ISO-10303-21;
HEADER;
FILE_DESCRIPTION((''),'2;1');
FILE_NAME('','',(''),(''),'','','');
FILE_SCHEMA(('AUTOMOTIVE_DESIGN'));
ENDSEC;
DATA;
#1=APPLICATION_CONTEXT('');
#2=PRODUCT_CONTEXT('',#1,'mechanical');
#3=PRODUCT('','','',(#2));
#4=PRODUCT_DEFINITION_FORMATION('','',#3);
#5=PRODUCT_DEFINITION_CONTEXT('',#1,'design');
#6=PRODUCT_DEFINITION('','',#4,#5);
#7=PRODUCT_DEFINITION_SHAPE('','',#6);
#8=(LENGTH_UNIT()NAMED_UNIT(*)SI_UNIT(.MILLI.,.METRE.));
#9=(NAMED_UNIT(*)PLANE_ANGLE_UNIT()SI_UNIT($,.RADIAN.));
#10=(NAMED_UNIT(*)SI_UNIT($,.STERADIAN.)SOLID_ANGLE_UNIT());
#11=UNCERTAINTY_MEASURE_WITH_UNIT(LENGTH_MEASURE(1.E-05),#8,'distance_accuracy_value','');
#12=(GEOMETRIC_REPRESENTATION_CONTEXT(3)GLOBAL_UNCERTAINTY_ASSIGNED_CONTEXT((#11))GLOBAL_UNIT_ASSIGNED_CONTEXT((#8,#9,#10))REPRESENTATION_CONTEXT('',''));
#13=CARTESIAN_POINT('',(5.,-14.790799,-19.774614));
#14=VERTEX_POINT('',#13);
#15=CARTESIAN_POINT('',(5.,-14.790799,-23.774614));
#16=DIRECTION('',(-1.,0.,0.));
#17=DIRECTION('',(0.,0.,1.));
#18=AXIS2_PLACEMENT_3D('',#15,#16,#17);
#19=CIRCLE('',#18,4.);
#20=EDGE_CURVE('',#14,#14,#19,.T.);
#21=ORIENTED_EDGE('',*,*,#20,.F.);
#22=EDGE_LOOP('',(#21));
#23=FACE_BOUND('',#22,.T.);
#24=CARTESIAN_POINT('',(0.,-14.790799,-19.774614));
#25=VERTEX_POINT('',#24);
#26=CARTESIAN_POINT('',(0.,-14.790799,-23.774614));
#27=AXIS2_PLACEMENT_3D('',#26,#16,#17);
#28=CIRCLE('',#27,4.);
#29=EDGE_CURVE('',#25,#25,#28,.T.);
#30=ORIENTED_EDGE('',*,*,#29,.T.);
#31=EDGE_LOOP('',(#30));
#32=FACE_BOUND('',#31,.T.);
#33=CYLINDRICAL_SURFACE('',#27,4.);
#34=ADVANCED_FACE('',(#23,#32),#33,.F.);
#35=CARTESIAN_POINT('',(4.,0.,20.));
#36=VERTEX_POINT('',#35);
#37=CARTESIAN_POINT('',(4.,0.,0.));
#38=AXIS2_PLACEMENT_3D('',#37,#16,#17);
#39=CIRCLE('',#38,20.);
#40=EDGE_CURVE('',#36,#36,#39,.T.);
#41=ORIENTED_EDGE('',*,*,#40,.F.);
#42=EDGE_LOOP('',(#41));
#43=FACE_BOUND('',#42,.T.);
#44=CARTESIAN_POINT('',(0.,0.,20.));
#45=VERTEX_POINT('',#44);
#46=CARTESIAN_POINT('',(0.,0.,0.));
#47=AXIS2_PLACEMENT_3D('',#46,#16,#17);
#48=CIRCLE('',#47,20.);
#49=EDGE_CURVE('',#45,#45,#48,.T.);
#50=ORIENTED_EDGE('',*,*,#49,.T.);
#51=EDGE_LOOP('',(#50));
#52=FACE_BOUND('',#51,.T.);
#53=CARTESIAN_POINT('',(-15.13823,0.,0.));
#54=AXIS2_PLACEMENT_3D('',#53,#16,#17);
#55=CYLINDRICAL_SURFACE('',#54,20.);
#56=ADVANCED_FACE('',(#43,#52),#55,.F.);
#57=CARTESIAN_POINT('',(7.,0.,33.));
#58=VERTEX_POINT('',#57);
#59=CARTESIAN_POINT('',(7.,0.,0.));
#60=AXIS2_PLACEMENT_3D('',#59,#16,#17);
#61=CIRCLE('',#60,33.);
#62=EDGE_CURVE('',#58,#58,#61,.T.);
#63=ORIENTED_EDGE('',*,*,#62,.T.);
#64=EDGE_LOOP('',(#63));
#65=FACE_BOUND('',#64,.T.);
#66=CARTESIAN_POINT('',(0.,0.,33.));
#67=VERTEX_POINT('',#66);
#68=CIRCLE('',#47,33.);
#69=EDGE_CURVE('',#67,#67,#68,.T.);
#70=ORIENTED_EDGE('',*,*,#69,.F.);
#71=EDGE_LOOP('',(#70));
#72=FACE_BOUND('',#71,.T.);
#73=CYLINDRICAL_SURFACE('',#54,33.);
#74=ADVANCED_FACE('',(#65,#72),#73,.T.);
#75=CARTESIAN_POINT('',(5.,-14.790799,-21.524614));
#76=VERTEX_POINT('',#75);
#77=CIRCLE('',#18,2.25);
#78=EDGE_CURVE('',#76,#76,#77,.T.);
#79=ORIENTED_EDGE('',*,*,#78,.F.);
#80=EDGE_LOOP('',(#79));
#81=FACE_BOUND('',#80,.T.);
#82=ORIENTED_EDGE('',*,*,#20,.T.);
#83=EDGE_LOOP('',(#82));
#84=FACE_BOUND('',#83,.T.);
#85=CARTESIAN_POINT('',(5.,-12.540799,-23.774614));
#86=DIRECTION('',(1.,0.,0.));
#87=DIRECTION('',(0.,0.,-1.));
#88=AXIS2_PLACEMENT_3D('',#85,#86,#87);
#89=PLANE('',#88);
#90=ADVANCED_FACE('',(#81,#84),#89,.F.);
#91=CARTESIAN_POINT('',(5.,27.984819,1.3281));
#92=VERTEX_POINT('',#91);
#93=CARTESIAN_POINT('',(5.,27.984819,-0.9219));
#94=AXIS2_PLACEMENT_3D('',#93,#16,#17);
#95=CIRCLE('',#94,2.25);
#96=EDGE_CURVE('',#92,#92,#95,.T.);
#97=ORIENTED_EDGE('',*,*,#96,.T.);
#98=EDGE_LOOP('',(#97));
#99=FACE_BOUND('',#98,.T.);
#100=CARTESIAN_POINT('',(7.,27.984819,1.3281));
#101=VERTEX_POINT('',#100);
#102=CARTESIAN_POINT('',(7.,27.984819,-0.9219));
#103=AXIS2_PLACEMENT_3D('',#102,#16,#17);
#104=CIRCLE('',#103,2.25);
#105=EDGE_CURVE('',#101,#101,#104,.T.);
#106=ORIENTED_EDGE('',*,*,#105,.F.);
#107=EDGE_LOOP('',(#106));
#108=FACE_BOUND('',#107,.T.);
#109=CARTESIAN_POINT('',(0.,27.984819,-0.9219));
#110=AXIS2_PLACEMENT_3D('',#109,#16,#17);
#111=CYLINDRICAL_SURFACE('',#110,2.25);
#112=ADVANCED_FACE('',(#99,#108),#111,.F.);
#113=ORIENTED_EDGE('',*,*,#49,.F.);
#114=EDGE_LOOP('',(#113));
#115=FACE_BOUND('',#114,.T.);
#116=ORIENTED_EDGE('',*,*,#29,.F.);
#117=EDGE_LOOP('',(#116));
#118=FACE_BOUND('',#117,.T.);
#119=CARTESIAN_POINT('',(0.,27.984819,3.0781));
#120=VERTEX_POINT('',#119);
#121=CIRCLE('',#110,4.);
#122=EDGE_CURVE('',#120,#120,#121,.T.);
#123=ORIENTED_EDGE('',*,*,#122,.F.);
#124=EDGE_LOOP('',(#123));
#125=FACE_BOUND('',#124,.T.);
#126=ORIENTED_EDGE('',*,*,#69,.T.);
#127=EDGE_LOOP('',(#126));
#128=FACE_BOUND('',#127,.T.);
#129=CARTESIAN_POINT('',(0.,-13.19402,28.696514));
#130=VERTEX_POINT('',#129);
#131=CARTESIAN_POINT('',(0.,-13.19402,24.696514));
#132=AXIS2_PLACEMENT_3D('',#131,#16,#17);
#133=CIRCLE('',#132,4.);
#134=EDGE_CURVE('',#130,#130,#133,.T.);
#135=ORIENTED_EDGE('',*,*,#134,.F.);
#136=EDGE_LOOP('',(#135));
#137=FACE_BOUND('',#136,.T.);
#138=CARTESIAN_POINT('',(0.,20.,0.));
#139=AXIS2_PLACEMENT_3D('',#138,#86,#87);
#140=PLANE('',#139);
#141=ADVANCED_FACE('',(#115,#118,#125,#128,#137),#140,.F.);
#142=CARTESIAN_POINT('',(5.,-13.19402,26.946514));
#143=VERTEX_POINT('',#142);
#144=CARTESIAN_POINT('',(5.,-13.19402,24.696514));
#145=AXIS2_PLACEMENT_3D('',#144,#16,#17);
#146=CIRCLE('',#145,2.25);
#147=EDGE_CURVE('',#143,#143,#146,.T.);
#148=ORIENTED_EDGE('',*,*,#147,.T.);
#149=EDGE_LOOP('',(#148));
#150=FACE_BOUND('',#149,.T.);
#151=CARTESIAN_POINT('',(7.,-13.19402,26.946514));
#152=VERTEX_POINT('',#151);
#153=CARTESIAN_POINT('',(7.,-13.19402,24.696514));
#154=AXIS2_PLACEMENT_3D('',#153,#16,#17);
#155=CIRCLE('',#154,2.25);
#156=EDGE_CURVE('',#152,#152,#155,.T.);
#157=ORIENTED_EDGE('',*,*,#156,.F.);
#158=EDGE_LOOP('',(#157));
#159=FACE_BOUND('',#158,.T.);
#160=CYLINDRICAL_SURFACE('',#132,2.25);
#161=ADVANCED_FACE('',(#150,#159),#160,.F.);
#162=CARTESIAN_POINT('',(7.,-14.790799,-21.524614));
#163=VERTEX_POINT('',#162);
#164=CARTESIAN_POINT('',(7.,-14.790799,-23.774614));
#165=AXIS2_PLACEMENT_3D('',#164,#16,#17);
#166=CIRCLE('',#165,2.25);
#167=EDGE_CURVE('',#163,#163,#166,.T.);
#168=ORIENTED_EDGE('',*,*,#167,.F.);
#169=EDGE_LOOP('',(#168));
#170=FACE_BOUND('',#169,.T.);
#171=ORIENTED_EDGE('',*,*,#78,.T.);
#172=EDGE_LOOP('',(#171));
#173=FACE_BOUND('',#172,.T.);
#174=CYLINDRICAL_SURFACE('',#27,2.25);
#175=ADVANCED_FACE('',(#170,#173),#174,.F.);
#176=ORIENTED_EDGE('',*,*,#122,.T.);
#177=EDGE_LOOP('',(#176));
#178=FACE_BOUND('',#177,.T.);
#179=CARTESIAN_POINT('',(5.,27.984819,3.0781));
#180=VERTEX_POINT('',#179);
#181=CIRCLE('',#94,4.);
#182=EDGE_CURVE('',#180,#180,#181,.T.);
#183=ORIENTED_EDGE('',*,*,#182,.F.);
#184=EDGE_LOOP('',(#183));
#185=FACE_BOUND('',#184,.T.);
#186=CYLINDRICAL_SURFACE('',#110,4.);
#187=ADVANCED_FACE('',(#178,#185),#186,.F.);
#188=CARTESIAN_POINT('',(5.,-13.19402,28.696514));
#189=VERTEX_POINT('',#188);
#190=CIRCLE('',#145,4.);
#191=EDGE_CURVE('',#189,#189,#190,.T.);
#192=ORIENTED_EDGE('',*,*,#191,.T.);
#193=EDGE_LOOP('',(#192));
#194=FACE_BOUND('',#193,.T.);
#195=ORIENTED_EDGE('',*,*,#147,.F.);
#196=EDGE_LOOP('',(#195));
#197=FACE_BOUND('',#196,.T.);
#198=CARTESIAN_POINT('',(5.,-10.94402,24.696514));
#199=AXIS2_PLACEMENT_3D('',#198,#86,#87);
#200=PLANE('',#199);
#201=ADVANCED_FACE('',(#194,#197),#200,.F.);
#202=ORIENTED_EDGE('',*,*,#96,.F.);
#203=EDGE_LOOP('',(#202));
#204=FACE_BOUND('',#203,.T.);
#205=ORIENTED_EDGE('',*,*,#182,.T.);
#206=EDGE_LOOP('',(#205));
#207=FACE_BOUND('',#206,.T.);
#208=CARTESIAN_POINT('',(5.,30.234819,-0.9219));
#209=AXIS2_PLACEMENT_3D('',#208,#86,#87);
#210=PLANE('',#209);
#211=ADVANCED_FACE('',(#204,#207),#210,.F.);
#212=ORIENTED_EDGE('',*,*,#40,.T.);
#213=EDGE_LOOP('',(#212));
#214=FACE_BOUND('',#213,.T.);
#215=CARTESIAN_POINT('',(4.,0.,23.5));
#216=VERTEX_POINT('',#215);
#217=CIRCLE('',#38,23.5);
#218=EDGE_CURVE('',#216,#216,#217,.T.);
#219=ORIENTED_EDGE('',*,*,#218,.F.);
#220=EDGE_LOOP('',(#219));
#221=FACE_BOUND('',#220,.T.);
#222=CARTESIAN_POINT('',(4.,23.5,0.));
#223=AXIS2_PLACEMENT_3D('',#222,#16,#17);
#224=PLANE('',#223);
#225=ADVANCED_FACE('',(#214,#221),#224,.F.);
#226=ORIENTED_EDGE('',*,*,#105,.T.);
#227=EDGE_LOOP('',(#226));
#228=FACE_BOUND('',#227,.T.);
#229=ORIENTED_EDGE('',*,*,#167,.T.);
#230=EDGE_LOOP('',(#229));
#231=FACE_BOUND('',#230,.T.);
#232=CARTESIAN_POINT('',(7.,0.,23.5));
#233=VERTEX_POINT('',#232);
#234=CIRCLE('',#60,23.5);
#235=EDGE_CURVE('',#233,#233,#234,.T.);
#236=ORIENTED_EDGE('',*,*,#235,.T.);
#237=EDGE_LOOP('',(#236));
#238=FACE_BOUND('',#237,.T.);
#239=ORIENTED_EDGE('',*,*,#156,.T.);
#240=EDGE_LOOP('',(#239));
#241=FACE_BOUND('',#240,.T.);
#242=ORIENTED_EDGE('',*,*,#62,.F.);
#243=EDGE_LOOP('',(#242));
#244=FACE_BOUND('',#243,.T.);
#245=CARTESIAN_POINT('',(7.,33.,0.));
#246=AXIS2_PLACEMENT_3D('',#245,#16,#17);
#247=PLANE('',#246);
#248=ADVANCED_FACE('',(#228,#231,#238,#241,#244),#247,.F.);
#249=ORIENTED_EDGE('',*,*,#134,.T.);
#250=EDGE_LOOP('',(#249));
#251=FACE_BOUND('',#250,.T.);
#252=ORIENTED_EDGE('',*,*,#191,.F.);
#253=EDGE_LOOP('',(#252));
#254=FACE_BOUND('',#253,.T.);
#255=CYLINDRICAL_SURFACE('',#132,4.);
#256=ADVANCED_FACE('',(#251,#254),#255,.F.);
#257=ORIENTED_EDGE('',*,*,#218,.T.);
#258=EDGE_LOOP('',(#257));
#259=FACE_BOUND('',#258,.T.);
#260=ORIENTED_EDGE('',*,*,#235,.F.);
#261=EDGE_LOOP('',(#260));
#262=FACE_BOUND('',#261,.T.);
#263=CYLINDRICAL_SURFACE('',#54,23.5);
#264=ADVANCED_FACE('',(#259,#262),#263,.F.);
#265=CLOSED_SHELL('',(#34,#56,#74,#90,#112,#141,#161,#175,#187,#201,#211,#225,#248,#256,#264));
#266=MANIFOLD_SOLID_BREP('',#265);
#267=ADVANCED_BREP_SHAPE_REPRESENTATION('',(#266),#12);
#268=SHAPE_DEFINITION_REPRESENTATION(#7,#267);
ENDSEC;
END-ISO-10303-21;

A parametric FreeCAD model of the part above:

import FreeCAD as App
import Part
import Sketcher
Q = App.Units.Quantity


def add_polygon(sketch, points):
    """Adds a closed chain of lines whose ends are joined by coincident constraints."""
    first, n = sketch.GeometryCount, len(points)
    for a, b in zip(points, points[1:] + points[:1]):
        sketch.addGeometry(Part.LineSegment(App.Vector(*a, 0), App.Vector(*b, 0)), False)
    for i in range(n):
        sketch.addConstraint(Sketcher.Constraint("Coincident", first + i, 2, first + (i + 1) % n, 1))

doc = App.newDocument("Part")
body = doc.addObject("PartDesign::Body", "Body")

# Sketch on XY plane
sketch1 = doc.addObject("Sketcher::SketchObject", "Sketch")
body.addObject(sketch1)
sketch1.AttachmentSupport = (doc.XY_Plane, [""])
sketch1.MapMode = "FlatFace"
add_polygon(sketch1, [(0, 33), (0, 20), (4, 20), (4, 23.5), (7, 23.5), (7, 33)])  # lines 0-5
sketch1.addConstraint([
    Sketcher.Constraint("Vertical", 0),
    Sketcher.Constraint("Horizontal", 1),
    Sketcher.Constraint("Vertical", 2),
    Sketcher.Constraint("Horizontal", 3),
    Sketcher.Constraint("Vertical", 4),
    Sketcher.Constraint("Horizontal", 5),
    Sketcher.Constraint("PointOnObject", 0, 2, -2),
    Sketcher.Constraint("DistanceX", 1, 1, 1, 2, Q("4 mm")),
    Sketcher.Constraint("DistanceX", 3, 1, 3, 2, Q("3 mm")),
    Sketcher.Constraint("DistanceY", 0, 2, 0, 1, Q("13 mm")),
    Sketcher.Constraint("DistanceY", 2, 1, 2, 2, Q("3.5 mm")),
    Sketcher.Constraint("DistanceY", -1, 1, 0, 2, Q("20 mm")),
])
revolution = doc.addObject("PartDesign::Revolution", "Revolution")
body.addObject(revolution)
revolution.Profile = sketch1
revolution.ReferenceAxis = (sketch1, ["H_Axis"])
revolution.Angle = 360

# Sketch on YZ plane
sketch2 = doc.addObject("Sketcher::SketchObject", "Sketch001")
body.addObject(sketch2)
sketch2.AttachmentSupport = (doc.YZ_Plane, [""])
sketch2.MapMode = "FlatFace"
sketch2.addGeometry(Part.Circle(App.Vector(28, -0.9, 0), App.Vector(0, 0, 1), 2.2), False)
sketch2.addConstraint([
    Sketcher.Constraint("Diameter", 0, Q("4.5 mm")),
    Sketcher.Constraint("DistanceY", 0, 3, -1, 1, Q("0.9219 mm")),
    Sketcher.Constraint("DistanceX", -1, 1, 0, 3, Q("27.984819 mm")),
])
doc.recompute()
hole = doc.addObject("PartDesign::Hole", "Hole")
body.addObject(hole)
hole.Profile = sketch2
hole.ThreadType = "None"
hole.Diameter = 4.5
hole.DepthType = "ThroughAll"
hole.HoleCutType = "Counterbore"
hole.HoleCutDiameter = 8
hole.HoleCutDepth = 5
hole.Reversed = True
doc.recompute()

polarpattern = doc.addObject("PartDesign::PolarPattern", "PolarPattern")
body.addObject(polarpattern)
polarpattern.Originals = [hole]
polarpattern.Axis = (doc.X_Axis, [""])
polarpattern.Angle = 360
polarpattern.Occurrences = 3
body.Tip = polarpattern

doc.recompute()
